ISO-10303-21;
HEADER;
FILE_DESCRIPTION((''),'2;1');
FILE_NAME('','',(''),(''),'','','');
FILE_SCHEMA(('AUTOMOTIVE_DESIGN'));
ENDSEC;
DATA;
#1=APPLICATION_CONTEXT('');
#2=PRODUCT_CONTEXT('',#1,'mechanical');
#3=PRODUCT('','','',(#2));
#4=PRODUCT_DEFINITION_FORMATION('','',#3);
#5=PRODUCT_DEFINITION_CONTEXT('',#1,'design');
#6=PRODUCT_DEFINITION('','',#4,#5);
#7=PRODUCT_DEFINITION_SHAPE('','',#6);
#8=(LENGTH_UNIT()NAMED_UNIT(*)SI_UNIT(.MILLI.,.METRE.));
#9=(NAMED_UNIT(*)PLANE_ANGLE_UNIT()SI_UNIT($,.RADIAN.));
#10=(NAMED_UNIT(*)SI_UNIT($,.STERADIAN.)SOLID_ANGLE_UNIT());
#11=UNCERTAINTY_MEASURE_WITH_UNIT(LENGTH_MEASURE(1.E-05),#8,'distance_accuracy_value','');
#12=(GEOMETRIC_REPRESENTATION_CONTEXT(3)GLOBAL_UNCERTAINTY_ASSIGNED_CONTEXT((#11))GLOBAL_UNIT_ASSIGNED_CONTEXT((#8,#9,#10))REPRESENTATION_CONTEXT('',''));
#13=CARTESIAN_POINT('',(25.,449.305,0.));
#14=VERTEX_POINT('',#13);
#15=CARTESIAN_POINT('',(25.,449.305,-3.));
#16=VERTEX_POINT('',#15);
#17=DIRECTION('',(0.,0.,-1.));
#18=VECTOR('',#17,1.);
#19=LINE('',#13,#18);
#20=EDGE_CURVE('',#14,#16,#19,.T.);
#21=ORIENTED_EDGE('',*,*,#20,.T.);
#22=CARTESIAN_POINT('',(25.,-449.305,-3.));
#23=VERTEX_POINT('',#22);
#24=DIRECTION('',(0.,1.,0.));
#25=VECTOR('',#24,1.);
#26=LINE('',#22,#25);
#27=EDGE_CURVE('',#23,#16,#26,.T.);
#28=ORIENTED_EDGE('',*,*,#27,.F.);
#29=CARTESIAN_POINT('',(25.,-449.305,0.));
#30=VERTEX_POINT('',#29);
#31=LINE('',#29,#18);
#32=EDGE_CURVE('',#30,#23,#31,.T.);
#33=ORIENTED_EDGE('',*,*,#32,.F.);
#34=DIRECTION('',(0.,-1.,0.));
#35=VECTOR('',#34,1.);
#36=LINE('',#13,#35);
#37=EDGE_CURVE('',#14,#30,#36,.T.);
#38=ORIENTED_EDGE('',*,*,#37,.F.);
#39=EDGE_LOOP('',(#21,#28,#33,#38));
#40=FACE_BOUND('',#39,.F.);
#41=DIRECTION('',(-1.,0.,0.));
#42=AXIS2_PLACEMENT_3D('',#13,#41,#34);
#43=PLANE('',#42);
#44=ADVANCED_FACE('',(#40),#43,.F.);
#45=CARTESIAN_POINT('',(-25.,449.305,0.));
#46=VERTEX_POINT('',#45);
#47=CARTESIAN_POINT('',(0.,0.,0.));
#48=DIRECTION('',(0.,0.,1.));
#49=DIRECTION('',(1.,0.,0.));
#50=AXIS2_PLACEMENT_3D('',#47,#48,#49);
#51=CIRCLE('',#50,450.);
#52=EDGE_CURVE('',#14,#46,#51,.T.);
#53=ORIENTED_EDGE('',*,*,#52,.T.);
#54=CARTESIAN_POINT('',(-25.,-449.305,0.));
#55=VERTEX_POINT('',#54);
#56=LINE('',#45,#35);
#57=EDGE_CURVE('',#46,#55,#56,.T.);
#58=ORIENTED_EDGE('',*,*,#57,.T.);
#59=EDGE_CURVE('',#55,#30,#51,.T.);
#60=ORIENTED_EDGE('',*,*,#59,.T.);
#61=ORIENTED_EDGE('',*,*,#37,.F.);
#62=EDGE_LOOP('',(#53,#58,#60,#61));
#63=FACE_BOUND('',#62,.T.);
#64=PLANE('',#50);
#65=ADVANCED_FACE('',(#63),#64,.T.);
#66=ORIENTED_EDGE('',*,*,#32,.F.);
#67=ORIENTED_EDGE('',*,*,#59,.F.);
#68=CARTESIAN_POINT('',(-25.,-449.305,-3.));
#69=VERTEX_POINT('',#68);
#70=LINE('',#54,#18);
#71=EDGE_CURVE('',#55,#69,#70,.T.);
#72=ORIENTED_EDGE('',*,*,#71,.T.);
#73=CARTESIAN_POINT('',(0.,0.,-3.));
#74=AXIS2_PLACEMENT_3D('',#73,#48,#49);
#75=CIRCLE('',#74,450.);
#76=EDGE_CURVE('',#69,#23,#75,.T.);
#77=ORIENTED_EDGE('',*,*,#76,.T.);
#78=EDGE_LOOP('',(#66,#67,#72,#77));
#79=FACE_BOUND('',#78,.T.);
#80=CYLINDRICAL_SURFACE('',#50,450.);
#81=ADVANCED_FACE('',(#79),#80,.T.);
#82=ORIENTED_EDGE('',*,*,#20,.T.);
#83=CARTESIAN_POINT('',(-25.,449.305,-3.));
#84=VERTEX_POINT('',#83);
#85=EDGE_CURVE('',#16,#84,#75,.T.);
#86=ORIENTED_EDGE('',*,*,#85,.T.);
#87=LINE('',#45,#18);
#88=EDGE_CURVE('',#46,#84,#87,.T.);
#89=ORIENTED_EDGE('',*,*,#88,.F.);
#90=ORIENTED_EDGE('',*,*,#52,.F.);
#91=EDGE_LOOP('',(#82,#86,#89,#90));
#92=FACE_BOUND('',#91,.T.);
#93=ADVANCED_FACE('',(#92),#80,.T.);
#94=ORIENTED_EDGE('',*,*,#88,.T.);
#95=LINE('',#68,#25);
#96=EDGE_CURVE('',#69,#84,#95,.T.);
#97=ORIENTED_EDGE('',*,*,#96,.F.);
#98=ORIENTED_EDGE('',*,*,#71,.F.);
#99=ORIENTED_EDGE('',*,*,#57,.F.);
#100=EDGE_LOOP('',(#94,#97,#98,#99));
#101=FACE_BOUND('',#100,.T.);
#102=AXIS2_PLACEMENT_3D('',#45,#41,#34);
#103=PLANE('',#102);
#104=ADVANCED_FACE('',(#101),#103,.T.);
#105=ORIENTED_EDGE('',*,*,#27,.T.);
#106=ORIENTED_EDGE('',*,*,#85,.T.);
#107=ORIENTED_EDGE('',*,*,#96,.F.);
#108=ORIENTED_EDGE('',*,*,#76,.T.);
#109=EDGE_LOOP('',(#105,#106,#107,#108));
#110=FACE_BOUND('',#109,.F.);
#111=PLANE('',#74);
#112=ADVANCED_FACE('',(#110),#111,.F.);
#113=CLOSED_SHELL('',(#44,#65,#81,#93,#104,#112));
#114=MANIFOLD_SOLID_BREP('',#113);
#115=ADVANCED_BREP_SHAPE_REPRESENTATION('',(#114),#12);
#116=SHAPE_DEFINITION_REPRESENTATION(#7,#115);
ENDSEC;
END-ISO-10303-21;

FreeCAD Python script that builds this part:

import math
import FreeCAD as App
import Part
import Sketcher

doc = App.newDocument("Part")
body = doc.addObject("PartDesign::Body", "Body")

# Sketch on XY plane
sketch1 = body.newObject("Sketcher::SketchObject", "Sketch")
sketch1.AttachmentSupport = (doc.getObject("XY_Plane"), [""])
sketch1.MapMode = "FlatFace"
sketch1.addGeometry(Part.ArcOfCircle(Part.Circle(App.Vector(0, 0, 0), App.Vector(0, 0, 1), 450), math.radians(86.82), math.radians(93.18)), False)
sketch1.addGeometry(Part.LineSegment(App.Vector(-25, 449, 0), App.Vector(-25, -449, 0)), False)
sketch1.addGeometry(Part.ArcOfCircle(Part.Circle(App.Vector(0, 0, 0), App.Vector(0, 0, 1), 450), math.radians(-93.18), math.radians(-86.82)), False)
sketch1.addGeometry(Part.LineSegment(App.Vector(25, -449, 0), App.Vector(25, 449, 0)), False)
sketch1.addConstraint(Sketcher.Constraint("Coincident", 0, 2, 1, 1))
sketch1.addConstraint(Sketcher.Constraint("Coincident", 1, 2, 2, 1))
sketch1.addConstraint(Sketcher.Constraint("Coincident", 2, 2, 3, 1))
sketch1.addConstraint(Sketcher.Constraint("Coincident", 3, 2, 0, 1))
sketch1.addConstraint(Sketcher.Constraint("Vertical", 1))
sketch1.addConstraint(Sketcher.Constraint("Vertical", 3))
sketch1.addConstraint(Sketcher.Constraint("Coincident", 0, 3, -1, 1))
sketch1.addConstraint(Sketcher.Constraint("Coincident", 2, 3, -1, 1))
sketch1.addConstraint(Sketcher.Constraint("Equal", 0, 2))
sketch1.addConstraint(Sketcher.Constraint("Horizontal", 1, 2, 2, 2))
sketch1.addConstraint(Sketcher.Constraint("Radius", 0, 450.0))
sketch1.addConstraint(Sketcher.Constraint("DistanceX", 1, 2, -1, 1, 25.0))
pad1 = body.newObject("PartDesign::Pad", "Pad")
pad1.Profile = sketch1
pad1.Length = 3
pad1.Reversed = True

doc.recompute()
